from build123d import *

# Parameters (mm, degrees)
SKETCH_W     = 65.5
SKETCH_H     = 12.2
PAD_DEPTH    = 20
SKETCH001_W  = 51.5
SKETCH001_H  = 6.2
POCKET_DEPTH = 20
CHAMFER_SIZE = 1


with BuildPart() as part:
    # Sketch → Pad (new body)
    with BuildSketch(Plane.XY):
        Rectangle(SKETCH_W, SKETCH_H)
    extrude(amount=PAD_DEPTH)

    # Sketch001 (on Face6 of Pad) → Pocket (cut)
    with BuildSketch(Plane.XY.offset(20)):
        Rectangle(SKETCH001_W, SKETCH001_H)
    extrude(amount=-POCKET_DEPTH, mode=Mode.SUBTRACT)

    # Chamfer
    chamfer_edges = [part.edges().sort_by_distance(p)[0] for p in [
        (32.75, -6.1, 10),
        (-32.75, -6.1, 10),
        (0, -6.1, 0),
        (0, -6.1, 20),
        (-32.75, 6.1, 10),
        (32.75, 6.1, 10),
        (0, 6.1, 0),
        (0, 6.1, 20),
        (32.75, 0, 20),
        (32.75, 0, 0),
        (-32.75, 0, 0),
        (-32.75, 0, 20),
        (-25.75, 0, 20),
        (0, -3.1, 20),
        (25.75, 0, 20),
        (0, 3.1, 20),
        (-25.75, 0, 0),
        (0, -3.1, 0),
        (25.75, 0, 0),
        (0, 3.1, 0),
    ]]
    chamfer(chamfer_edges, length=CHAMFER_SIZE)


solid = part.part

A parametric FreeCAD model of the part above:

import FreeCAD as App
import Part
import Sketcher
from FreeCAD import Vector
Q = App.Units.Quantity


def edges_at(feature, points):
    """Names of the edges that pass closest to the given points."""
    edges = feature.Shape.Edges
    near = lambda p: min(range(len(edges)), key=lambda i: edges[i].distToShape(Part.Vertex(*p))[0])
    return sorted({f"Edge{near(p) + 1}" for p in points})

doc = App.newDocument("Part")
body = doc.addObject("PartDesign::Body", "Body")

# Sketch on XY plane
sketch1 = doc.addObject("Sketcher::SketchObject", "Sketch")
body.addObject(sketch1)
sketch1.AttachmentSupport = (doc.XY_Plane, [""])
sketch1.MapMode = "FlatFace"
sketch1.addGeometry([
    Part.LineSegment(Vector(-33, 6, 0), Vector(-33, -6, 0)),
    Part.LineSegment(Vector(-33, -6, 0), Vector(33, -6, 0)),
    Part.LineSegment(Vector(33, -6, 0), Vector(33, 6, 0)),
    Part.LineSegment(Vector(33, 6, 0), Vector(-33, 6, 0)),
], False)
sketch1.addConstraint([
    Sketcher.Constraint("Coincident", 0, 2, 1, 1),
    Sketcher.Constraint("Coincident", 1, 2, 2, 1),
    Sketcher.Constraint("Coincident", 2, 2, 3, 1),
    Sketcher.Constraint("Coincident", 3, 2, 0, 1),
    Sketcher.Constraint("Vertical", 0),
    Sketcher.Constraint("Horizontal", 1),
    Sketcher.Constraint("Vertical", 2),
    Sketcher.Constraint("Horizontal", 3),
    Sketcher.Constraint("Symmetric", 0, 2, 2, 2, -1, 1),
    Sketcher.Constraint("DistanceX", 1, 1, 1, 2, Q("65.5 mm")),
    Sketcher.Constraint("DistanceY", 0, 2, 0, 1, Q("12.2 mm")),
])
pad1 = doc.addObject("PartDesign::Pad", "Pad")
body.addObject(pad1)
pad1.Profile = sketch1
pad1.Length = 20

# Sketch on XY plane
sketch2 = doc.addObject("Sketcher::SketchObject", "Sketch001")
body.addObject(sketch2)
sketch2.AttachmentSupport = (doc.XY_Plane, [""])
sketch2.MapMode = "FlatFace"
sketch2.AttachmentOffset = App.Placement(Vector(0, 0, 20), App.Rotation())
sketch2.addGeometry([
    Part.LineSegment(Vector(-26, 3, 0), Vector(-26, -3, 0)),
    Part.LineSegment(Vector(-26, -3, 0), Vector(26, -3, 0)),
    Part.LineSegment(Vector(26, -3, 0), Vector(26, 3, 0)),
    Part.LineSegment(Vector(26, 3, 0), Vector(-26, 3, 0)),
], False)
sketch2.addConstraint([
    Sketcher.Constraint("Coincident", 0, 2, 1, 1),
    Sketcher.Constraint("Coincident", 1, 2, 2, 1),
    Sketcher.Constraint("Coincident", 2, 2, 3, 1),
    Sketcher.Constraint("Coincident", 3, 2, 0, 1),
    Sketcher.Constraint("Vertical", 0),
    Sketcher.Constraint("Horizontal", 1),
    Sketcher.Constraint("Vertical", 2),
    Sketcher.Constraint("Horizontal", 3),
    Sketcher.Constraint("Symmetric", 0, 2, 2, 2, -1, 1),
    Sketcher.Constraint("DistanceX", 1, 1, 1, 2, Q("51.5 mm")),
    Sketcher.Constraint("DistanceY", 0, 2, 0, 1, Q("6.2 mm")),
])
pocket1 = doc.addObject("PartDesign::Pocket", "Pocket")
body.addObject(pocket1)
pocket1.Profile = sketch2
pocket1.Length = 20
doc.recompute()

chamfer = doc.addObject("PartDesign::Chamfer", "Chamfer")
body.addObject(chamfer)
chamfer.Base = (pocket1, edges_at(pocket1, [
    (32.75, -6.1, 10),
    (-32.75, -6.1, 10),
    (0, -6.1, 0),
    (0, -6.1, 20),
    (-32.75, 6.1, 10),
    (32.75, 6.1, 10),
    (0, 6.1, 0),
    (0, 6.1, 20),
    (32.75, 0, 20),
    (32.75, 0, 0),
    (-32.75, 0, 0),
    (-32.75, 0, 20),
    (-25.75, 0, 20),
    (0, -3.1, 20),
    (25.75, 0, 20),
    (0, 3.1, 20),
    (-25.75, 0, 0),
    (0, -3.1, 0),
    (25.75, 0, 0),
    (0, 3.1, 0),
]))
chamfer.Size = 1

doc.recompute()
